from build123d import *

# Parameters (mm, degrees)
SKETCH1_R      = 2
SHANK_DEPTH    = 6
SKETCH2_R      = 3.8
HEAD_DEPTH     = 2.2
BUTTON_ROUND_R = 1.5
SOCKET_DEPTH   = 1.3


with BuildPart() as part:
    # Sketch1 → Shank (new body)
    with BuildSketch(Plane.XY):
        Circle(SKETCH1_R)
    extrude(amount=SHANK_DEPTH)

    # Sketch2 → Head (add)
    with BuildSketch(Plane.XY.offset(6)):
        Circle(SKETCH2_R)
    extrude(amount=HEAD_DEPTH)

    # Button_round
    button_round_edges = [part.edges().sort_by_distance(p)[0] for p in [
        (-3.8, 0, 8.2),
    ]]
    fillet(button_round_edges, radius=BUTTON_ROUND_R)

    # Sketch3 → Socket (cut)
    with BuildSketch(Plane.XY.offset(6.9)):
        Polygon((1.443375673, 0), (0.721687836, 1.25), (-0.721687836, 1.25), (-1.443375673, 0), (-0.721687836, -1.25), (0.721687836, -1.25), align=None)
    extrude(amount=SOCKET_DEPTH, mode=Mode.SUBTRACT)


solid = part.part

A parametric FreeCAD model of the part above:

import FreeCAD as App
import Part
import Sketcher
from FreeCAD import Vector
Q = App.Units.Quantity


def edges_at(feature, points):
    """Names of the edges that pass closest to the given points."""
    edges = feature.Shape.Edges
    near = lambda p: min(range(len(edges)), key=lambda i: edges[i].distToShape(Part.Vertex(*p))[0])
    return sorted({f"Edge{near(p) + 1}" for p in points})


def add_polygon(sketch, points):
    """Adds a closed chain of lines whose ends are joined by coincident constraints."""
    first, n = sketch.GeometryCount, len(points)
    for a, b in zip(points, points[1:] + points[:1]):
        sketch.addGeometry(Part.LineSegment(App.Vector(*a, 0), App.Vector(*b, 0)), False)
    for i in range(n):
        sketch.addConstraint(Sketcher.Constraint("Coincident", first + i, 2, first + (i + 1) % n, 1))

doc = App.newDocument("Part")
body = doc.addObject("PartDesign::Body", "Body")

# Sketch on XY plane
sketch1 = body.newObject("Sketcher::SketchObject", "Sketch")
sketch1.AttachmentSupport = (doc.getObject("XY_Plane"), [""])
sketch1.MapMode = "FlatFace"
sketch1.addGeometry(Part.Circle(Vector(0, 0, 0), Vector(0, 0, 1), 2), False)
sketch1.addConstraint([
    Sketcher.Constraint("Coincident", 0, 3, -1, 1),
    Sketcher.Constraint("Diameter", 0, Q("4 mm")),
])
pad1 = body.newObject("PartDesign::Pad", "Pad")
pad1.Profile = sketch1
pad1.Length = 6

# Sketch on XY plane
sketch2 = body.newObject("Sketcher::SketchObject", "Sketch001")
sketch2.AttachmentSupport = (doc.getObject("XY_Plane"), [""])
sketch2.MapMode = "FlatFace"
sketch2.AttachmentOffset = App.Placement(Vector(0, 0, 6), App.Rotation())
sketch2.addGeometry(Part.Circle(Vector(0, 0, 0), Vector(0, 0, 1), 3.8), False)
sketch2.addConstraint([
    Sketcher.Constraint("Coincident", 0, 3, -1, 1),
    Sketcher.Constraint("Diameter", 0, Q("7.6 mm")),
])
pad2 = body.newObject("PartDesign::Pad", "Pad001")
pad2.Profile = sketch2
pad2.Length = 2.2
doc.recompute()

fillet = body.newObject("PartDesign::Fillet", "Fillet")
fillet.Base = (pad2, edges_at(pad2, [(-3.8, 0, 8.2)]))
fillet.Radius = 1.5

# Sketch on XY plane
sketch3 = body.newObject("Sketcher::SketchObject", "Sketch002")
sketch3.AttachmentSupport = (doc.getObject("XY_Plane"), [""])
sketch3.MapMode = "FlatFace"
sketch3.AttachmentOffset = App.Placement(Vector(0, 0, 6.9), App.Rotation())
add_polygon(sketch3, [(1.443376, 0), (0.721688, 1.25), (-0.721688, 1.25), (-1.443376, 0), (-0.721688, -1.25), (0.721688, -1.25)])  # lines 0-5
sketch3.addConstraint([
    Sketcher.Constraint("Horizontal", 1),
    Sketcher.Constraint("Horizontal", 4),
    Sketcher.Constraint("Symmetric", 0, 2, 3, 2, -1, 1),
    Sketcher.Constraint("Symmetric", 2, 2, 5, 2, -1, 1),
    Sketcher.Constraint("PointOnObject", 2, 2, -1),
    Sketcher.Constraint("Parallel", 2, 5),
    Sketcher.Constraint("Vertical", 1, 2, 3, 2),
    Sketcher.Constraint("Angle", 0, Q("120 deg")),
    Sketcher.Constraint("DistanceY", 3, 2, 1, 2, Q("2.5 mm")),
    Sketcher.Constraint("DistanceX", 1, 2, 1, 1, Q("1.443376 mm")),
])
pocket1 = body.newObject("PartDesign::Pocket", "Pocket")
pocket1.Profile = sketch3
pocket1.Length = 1.3
pocket1.Reversed = True

doc.recompute()
